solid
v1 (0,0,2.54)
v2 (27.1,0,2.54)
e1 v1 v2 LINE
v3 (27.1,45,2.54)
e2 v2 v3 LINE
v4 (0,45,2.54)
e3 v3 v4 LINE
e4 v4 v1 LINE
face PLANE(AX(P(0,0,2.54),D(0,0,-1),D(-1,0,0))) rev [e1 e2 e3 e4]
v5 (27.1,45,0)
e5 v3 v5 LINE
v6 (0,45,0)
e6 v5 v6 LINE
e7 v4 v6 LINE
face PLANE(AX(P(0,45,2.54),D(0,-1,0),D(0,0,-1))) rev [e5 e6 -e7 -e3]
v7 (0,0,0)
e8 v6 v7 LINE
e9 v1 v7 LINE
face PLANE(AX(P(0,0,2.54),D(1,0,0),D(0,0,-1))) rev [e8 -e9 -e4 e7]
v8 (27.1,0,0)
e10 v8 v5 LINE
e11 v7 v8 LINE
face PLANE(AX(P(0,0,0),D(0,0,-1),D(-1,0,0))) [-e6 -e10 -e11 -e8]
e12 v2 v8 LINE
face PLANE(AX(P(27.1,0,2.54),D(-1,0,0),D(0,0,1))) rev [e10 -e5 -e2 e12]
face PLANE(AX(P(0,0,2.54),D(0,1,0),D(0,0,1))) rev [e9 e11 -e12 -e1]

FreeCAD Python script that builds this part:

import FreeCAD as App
import Part
import Sketcher
from FreeCAD import Vector

doc = App.newDocument("Part")
body = doc.addObject("PartDesign::Body", "Body")

# Sketch on XY plane
sketch1 = body.newObject("Sketcher::SketchObject", "Sketch")
sketch1.AttachmentSupport = (doc.getObject("XY_Plane"), [""])
sketch1.MapMode = "FlatFace"
sketch1.addGeometry(Part.LineSegment(Vector(0, 45, 0), Vector(0, 0, 0)), False)
sketch1.addGeometry(Part.LineSegment(Vector(0, 0, 0), Vector(27.1, 0, 0)), False)
sketch1.addGeometry(Part.LineSegment(Vector(27.1, 0, 0), Vector(27.1, 45, 0)), False)
sketch1.addGeometry(Part.LineSegment(Vector(27.1, 45, 0), Vector(0, 45, 0)), False)
sketch1.addConstraint(Sketcher.Constraint("Coincident", 0, 2, 1, 1))
sketch1.addConstraint(Sketcher.Constraint("Coincident", 1, 2, 2, 1))
sketch1.addConstraint(Sketcher.Constraint("Coincident", 2, 2, 3, 1))
sketch1.addConstraint(Sketcher.Constraint("Coincident", 3, 2, 0, 1))
sketch1.addConstraint(Sketcher.Constraint("Vertical", 0))
sketch1.addConstraint(Sketcher.Constraint("Horizontal", 1))
sketch1.addConstraint(Sketcher.Constraint("Vertical", 2))
sketch1.addConstraint(Sketcher.Constraint("Horizontal", 3))
sketch1.addConstraint(Sketcher.Constraint("Coincident", 0, 2, -1, 1))
sketch1.addConstraint(Sketcher.Constraint("DistanceY", 0, 2, 0, 1, 45.0))
sketch1.addConstraint(Sketcher.Constraint("DistanceX", 1, 1, 1, 2, 27.1))
pad1 = body.newObject("PartDesign::Pad", "Pad")
pad1.Profile = sketch1
pad1.Length = 2.54

doc.recompute()
